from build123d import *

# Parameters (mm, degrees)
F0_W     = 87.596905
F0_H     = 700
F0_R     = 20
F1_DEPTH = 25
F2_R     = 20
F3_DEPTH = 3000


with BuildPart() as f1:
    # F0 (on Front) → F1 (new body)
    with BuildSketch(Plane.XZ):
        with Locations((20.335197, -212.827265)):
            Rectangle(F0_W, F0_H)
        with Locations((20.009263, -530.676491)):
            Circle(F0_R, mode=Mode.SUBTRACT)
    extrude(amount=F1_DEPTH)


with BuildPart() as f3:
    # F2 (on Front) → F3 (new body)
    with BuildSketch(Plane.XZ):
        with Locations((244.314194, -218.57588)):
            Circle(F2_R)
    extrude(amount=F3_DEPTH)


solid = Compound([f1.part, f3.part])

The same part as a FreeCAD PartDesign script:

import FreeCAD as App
import Part
import Sketcher
from FreeCAD import Vector
Q = App.Units.Quantity

doc = App.newDocument("Part")
body = doc.addObject("PartDesign::Body", "Body")

# Sketch on XZ plane
sketch1 = doc.addObject("Sketcher::SketchObject", "Sketch")
body.addObject(sketch1)
sketch1.AttachmentSupport = (doc.XZ_Plane, [""])
sketch1.MapMode = "FlatFace"
sketch1.addGeometry(Part.LineSegment(Vector(-23.463255, 137.172735, 0), Vector(-23.463255, -562.827265, 0)), False)
sketch1.addGeometry(Part.LineSegment(Vector(-23.463255, -562.827265, 0), Vector(64.13365, -562.827265, 0)), False)
sketch1.addGeometry(Part.LineSegment(Vector(64.13365, -562.827265, 0), Vector(64.13365, 137.172735, 0)), False)
sketch1.addGeometry(Part.LineSegment(Vector(64.13365, 137.172735, 0), Vector(-23.463255, 137.172735, 0)), False)
sketch1.addGeometry(Part.Circle(Vector(20.009263, -530.676491, 0), Vector(0, 0, 1), 20), False)
sketch1.addConstraint(Sketcher.Constraint("Coincident", 0, 2, 1, 1))
sketch1.addConstraint(Sketcher.Constraint("Coincident", 1, 2, 2, 1))
sketch1.addConstraint(Sketcher.Constraint("Coincident", 2, 2, 3, 1))
sketch1.addConstraint(Sketcher.Constraint("Coincident", 3, 2, 0, 1))
sketch1.addConstraint(Sketcher.Constraint("Vertical", 0))
sketch1.addConstraint(Sketcher.Constraint("Horizontal", 1))
sketch1.addConstraint(Sketcher.Constraint("Vertical", 2))
sketch1.addConstraint(Sketcher.Constraint("Horizontal", 3))
sketch1.addConstraint(Sketcher.Constraint("Diameter", 4, Q("40 mm")))
sketch1.addConstraint(Sketcher.Constraint("DistanceY", 0, 2, 0, 1, Q("700 mm")))
sketch1.addConstraint(Sketcher.Constraint("DistanceX", 1, 1, 1, 2, Q("87.596905 mm")))
sketch1.addConstraint(Sketcher.Constraint("DistanceY", 4, 3, -1, 1, Q("530.676491 mm")))
sketch1.addConstraint(Sketcher.Constraint("DistanceX", -1, 1, 1, 2, Q("64.13365 mm")))
sketch1.addConstraint(Sketcher.Constraint("DistanceX", 0, 2, 4, 3, Q("43.472518 mm")))
sketch1.addConstraint(Sketcher.Constraint("DistanceY", 0, 2, -1, 1, Q("562.827265 mm")))
pad1 = doc.addObject("PartDesign::Pad", "Pad")
body.addObject(pad1)
pad1.Profile = sketch1
pad1.Length = 25
body2 = doc.addObject("PartDesign::Body", "Body001")

# Sketch on XZ plane
sketch2 = doc.addObject("Sketcher::SketchObject", "Sketch001")
body2.addObject(sketch2)
sketch2.AttachmentSupport = (doc.getObject("XZ_Plane001"), [""])
sketch2.MapMode = "FlatFace"
sketch2.addGeometry(Part.Circle(Vector(244.314194, -218.57588, 0), Vector(0, 0, 1), 20), False)
sketch2.addConstraint(Sketcher.Constraint("Diameter", 0, Q("40 mm")))
sketch2.addConstraint(Sketcher.Constraint("DistanceY", 0, 3, -1, 1, Q("218.57588 mm")))
sketch2.addConstraint(Sketcher.Constraint("DistanceX", -1, 1, 0, 3, Q("244.314194 mm")))
pad2 = doc.addObject("PartDesign::Pad", "Pad001")
body2.addObject(pad2)
pad2.Profile = sketch2
pad2.Length = 3000

doc.recompute()
